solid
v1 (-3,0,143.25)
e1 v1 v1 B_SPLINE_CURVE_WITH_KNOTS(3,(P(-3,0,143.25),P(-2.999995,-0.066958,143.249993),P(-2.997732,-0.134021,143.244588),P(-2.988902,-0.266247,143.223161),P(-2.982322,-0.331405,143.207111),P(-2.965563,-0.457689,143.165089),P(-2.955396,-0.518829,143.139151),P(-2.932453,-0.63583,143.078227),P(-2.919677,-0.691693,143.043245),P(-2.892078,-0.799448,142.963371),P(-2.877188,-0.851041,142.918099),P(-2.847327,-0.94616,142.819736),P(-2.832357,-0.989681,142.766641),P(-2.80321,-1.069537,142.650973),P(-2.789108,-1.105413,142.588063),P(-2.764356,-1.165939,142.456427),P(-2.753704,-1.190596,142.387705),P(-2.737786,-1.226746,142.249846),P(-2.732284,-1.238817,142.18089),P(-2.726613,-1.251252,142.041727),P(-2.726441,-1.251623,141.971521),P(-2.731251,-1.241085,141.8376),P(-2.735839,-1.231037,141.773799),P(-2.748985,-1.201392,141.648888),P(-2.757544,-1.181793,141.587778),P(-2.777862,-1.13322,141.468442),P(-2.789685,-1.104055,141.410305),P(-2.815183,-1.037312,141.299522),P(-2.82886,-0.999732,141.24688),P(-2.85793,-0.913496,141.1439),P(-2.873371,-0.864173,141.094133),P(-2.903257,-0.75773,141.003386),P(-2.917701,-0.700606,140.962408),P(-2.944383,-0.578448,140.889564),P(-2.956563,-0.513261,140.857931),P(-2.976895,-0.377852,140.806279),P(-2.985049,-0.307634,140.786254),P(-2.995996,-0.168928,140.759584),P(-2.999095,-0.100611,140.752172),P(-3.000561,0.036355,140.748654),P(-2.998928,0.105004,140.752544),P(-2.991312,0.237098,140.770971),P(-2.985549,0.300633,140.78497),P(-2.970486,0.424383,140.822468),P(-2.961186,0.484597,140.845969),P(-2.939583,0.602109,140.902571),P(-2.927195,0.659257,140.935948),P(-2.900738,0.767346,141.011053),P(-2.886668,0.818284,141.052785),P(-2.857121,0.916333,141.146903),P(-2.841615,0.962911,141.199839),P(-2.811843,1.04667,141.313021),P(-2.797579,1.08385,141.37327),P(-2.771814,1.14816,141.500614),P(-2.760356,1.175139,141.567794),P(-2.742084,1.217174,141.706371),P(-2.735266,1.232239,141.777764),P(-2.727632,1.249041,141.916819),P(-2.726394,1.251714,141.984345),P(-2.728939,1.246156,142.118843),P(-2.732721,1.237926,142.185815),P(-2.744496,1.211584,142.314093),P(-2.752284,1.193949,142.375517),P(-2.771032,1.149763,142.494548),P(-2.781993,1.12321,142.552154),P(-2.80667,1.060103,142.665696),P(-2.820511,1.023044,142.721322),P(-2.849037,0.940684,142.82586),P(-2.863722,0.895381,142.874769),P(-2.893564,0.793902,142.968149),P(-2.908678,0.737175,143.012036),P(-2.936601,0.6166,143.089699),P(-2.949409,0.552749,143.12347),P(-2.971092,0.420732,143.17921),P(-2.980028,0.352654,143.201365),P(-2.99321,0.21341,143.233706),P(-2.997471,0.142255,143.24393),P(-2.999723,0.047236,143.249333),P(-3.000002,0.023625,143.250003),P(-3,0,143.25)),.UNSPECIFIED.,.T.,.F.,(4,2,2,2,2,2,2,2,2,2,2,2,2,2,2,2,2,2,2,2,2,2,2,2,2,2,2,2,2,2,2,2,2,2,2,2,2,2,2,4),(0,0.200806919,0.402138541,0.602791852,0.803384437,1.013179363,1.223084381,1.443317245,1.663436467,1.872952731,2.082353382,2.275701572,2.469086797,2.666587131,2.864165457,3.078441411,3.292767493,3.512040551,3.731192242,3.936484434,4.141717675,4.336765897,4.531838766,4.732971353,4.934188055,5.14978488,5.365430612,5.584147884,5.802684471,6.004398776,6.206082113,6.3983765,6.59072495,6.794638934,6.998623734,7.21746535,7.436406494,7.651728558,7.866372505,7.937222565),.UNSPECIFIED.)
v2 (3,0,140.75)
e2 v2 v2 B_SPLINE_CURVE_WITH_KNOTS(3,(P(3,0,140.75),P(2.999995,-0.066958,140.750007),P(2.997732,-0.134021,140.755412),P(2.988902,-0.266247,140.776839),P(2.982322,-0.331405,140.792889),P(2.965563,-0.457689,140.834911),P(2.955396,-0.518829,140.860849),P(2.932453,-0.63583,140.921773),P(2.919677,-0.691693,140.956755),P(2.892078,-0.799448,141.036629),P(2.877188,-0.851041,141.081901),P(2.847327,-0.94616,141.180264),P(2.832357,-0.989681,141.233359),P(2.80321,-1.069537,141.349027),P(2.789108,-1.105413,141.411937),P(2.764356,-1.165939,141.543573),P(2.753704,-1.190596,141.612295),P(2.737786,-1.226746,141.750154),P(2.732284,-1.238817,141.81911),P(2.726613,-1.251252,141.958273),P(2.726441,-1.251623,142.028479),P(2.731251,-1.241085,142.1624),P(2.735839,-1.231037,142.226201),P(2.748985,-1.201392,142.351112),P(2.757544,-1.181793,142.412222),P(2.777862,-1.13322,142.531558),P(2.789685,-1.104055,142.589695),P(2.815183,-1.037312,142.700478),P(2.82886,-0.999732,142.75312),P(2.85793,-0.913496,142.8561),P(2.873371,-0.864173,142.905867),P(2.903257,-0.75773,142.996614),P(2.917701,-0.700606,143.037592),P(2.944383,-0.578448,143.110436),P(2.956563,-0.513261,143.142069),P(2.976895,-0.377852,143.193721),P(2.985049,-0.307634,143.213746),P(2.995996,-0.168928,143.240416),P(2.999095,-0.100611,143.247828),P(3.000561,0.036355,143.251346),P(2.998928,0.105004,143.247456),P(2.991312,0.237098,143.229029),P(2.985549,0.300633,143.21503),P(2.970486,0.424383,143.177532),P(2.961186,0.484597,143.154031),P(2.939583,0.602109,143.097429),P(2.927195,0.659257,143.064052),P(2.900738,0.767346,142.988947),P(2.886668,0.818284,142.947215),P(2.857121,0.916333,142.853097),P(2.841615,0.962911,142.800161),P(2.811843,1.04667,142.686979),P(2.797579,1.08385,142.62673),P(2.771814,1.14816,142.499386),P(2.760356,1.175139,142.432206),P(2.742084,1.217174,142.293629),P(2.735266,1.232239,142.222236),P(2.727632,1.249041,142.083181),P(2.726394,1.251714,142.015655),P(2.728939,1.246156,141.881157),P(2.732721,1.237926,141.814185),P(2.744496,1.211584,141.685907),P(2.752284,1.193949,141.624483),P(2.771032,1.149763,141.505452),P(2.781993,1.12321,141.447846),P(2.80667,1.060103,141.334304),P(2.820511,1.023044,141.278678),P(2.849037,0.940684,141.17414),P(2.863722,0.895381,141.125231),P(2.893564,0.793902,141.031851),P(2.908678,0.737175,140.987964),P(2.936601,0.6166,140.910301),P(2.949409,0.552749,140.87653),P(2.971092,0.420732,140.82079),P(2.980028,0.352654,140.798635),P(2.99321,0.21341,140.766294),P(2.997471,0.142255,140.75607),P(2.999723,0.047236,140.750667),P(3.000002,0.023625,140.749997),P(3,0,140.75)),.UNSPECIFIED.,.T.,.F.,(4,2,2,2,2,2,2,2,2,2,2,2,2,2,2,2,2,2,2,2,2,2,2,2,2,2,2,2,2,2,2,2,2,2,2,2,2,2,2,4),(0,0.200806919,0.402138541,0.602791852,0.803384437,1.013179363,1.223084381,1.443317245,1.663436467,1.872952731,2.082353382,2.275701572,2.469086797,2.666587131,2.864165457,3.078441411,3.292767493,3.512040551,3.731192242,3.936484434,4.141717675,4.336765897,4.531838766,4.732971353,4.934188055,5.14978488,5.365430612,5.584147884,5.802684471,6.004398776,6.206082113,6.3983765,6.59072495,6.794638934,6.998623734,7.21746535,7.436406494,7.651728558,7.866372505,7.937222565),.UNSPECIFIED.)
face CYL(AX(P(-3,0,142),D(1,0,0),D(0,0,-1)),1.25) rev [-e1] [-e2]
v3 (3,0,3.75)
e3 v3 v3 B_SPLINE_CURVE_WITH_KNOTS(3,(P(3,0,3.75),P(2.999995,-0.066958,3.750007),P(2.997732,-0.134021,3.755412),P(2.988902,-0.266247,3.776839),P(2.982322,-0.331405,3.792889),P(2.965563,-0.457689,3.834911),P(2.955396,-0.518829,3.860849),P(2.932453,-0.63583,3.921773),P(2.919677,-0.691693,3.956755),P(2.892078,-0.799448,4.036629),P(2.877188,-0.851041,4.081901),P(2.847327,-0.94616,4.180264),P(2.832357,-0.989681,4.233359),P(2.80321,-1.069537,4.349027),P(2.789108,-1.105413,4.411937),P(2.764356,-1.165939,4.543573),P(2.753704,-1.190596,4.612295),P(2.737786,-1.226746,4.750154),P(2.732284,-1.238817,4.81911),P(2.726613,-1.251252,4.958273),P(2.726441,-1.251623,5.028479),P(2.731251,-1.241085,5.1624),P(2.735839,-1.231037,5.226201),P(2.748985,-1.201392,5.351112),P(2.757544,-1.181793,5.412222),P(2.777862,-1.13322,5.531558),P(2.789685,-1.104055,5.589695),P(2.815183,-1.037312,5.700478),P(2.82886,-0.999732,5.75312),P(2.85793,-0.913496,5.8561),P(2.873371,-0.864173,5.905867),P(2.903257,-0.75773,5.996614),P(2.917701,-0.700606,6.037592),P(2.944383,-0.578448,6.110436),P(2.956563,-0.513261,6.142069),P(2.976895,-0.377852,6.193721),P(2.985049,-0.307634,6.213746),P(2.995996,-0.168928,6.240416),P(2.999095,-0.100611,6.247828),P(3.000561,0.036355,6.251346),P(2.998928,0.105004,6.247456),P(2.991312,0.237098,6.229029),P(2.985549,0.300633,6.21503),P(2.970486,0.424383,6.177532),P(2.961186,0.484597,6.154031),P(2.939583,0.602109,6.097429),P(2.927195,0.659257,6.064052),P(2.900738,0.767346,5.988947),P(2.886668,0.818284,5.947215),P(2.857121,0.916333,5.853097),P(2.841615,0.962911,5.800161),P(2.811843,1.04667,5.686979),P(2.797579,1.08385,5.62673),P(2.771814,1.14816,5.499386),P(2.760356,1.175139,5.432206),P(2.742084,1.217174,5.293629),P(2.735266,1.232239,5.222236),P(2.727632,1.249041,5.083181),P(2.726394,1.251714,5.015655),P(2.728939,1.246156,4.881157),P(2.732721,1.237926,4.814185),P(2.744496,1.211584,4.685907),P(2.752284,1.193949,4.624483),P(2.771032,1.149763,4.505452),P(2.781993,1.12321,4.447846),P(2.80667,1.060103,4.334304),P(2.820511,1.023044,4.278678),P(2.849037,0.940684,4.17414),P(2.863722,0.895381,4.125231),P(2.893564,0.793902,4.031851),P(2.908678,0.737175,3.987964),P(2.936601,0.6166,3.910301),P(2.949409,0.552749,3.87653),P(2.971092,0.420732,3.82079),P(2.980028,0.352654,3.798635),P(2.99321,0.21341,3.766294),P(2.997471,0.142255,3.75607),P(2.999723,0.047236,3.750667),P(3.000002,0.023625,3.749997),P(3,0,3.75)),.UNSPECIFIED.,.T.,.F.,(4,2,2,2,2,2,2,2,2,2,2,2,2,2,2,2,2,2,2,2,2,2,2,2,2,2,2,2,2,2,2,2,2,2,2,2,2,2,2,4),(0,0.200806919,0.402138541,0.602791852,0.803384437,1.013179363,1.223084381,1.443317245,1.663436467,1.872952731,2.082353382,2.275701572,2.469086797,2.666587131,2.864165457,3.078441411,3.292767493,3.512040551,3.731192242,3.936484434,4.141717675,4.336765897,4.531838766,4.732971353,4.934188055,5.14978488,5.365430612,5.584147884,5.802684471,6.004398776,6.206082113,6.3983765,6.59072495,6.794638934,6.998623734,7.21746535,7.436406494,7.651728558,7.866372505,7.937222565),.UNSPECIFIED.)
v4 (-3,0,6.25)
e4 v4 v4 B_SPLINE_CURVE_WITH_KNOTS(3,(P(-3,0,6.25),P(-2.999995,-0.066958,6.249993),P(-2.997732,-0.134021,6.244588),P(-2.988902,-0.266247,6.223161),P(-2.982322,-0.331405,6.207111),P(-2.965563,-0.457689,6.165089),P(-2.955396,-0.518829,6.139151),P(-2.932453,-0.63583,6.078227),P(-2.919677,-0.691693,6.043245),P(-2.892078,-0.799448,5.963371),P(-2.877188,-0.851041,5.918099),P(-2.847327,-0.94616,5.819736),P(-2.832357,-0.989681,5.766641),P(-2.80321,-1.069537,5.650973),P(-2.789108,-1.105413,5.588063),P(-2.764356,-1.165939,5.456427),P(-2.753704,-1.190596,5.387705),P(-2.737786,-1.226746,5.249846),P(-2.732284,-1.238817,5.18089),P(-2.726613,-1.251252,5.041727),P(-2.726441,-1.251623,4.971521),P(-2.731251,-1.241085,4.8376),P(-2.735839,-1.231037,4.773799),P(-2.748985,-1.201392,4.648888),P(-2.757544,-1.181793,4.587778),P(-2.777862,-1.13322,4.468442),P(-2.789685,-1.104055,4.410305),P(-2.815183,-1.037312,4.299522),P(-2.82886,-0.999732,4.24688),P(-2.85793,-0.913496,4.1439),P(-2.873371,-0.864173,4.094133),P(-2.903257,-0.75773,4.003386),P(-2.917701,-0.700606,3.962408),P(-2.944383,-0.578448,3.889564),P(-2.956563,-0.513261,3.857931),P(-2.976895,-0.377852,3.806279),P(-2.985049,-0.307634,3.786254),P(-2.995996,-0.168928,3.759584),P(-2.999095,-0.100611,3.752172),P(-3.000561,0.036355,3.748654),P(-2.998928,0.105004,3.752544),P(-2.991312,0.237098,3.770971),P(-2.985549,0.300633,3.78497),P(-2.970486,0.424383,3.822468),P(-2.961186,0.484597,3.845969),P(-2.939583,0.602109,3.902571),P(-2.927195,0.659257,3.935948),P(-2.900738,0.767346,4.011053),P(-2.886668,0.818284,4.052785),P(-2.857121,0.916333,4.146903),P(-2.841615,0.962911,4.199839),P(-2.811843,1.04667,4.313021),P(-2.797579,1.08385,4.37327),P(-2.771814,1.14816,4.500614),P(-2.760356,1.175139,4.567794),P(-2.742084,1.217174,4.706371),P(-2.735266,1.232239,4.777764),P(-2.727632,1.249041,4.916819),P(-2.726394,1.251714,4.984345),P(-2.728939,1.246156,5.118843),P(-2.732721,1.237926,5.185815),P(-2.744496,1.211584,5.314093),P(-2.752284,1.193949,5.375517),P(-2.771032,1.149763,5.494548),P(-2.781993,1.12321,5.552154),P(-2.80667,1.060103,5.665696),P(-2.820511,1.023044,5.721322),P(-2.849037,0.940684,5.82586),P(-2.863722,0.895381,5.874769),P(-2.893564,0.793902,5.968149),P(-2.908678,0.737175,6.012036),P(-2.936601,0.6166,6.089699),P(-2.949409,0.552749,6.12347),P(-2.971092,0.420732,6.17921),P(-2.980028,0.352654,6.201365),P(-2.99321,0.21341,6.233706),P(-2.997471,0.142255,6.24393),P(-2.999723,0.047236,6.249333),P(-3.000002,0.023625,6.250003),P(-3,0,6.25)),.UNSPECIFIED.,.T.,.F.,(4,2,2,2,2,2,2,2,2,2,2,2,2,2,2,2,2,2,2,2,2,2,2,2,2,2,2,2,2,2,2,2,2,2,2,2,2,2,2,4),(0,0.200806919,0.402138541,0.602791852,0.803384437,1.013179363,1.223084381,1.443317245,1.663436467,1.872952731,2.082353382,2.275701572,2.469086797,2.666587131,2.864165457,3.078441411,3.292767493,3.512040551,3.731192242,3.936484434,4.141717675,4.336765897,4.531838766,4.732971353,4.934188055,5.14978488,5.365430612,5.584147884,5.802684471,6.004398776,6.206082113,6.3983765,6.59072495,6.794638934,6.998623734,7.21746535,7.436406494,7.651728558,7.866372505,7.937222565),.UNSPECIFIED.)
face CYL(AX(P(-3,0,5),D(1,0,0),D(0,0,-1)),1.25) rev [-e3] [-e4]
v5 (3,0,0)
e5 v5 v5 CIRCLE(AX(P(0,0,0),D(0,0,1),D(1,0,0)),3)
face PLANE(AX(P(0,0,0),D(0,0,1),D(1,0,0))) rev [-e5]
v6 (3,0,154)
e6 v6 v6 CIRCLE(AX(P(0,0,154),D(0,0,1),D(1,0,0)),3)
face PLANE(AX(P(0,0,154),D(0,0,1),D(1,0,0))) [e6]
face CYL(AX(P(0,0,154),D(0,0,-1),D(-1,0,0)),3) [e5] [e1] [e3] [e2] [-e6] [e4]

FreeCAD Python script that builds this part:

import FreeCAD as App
import Part
import Sketcher
from FreeCAD import Vector

doc = App.newDocument("Part")
body = doc.addObject("PartDesign::Body", "Body")

sketch1 = doc.addObject("Sketcher::SketchObject", "Sketch")
body.addObject(sketch1)
sketch1.AttachmentSupport = (doc.XY_Plane, [""])
sketch1.MapMode = "FlatFace"
sketch1.addGeometry(Part.Circle(Vector(0, 0, 0), Vector(0, 0, 1), 3), False)
sketch1.addConstraint(Sketcher.Constraint("Coincident", 0, 3, -1, 1))
sketch1.addConstraint(Sketcher.Constraint("Diameter", 0, 6.0))
pad1 = doc.addObject("PartDesign::Pad", "Pad")
body.addObject(pad1)
pad1.Profile = sketch1
pad1.Length = 154

sketch2 = doc.addObject("Sketcher::SketchObject", "Sketch001")
body.addObject(sketch2)
sketch2.AttachmentSupport = (doc.YZ_Plane, [""])
sketch2.MapMode = "FlatFace"
sketch2.addGeometry(Part.Circle(Vector(0, 5, 0), Vector(0, 0, 1), 1.2), False)
sketch2.addGeometry(Part.Circle(Vector(0, 142, 0), Vector(0, 0, 1), 1.2), False)
sketch2.addConstraint(Sketcher.Constraint("Equal", 0, 1))
sketch2.addConstraint(Sketcher.Constraint("PointOnObject", 0, 3, -2))
sketch2.addConstraint(Sketcher.Constraint("PointOnObject", 1, 3, -2))
sketch2.addConstraint(Sketcher.Constraint("Diameter", 0, 2.5))
sketch2.addConstraint(Sketcher.Constraint("DistanceY", -1, 1, 0, 3, 5.0))
sketch2.addConstraint(Sketcher.Constraint("DistanceY", -1, 1, 1, 3, 142.0))
pocket1 = doc.addObject("PartDesign::Pocket", "Pocket")
body.addObject(pocket1)
pocket1.Profile = sketch2
pocket1.Type = "ThroughAll"
pocket1.Midplane = True

doc.recompute()
